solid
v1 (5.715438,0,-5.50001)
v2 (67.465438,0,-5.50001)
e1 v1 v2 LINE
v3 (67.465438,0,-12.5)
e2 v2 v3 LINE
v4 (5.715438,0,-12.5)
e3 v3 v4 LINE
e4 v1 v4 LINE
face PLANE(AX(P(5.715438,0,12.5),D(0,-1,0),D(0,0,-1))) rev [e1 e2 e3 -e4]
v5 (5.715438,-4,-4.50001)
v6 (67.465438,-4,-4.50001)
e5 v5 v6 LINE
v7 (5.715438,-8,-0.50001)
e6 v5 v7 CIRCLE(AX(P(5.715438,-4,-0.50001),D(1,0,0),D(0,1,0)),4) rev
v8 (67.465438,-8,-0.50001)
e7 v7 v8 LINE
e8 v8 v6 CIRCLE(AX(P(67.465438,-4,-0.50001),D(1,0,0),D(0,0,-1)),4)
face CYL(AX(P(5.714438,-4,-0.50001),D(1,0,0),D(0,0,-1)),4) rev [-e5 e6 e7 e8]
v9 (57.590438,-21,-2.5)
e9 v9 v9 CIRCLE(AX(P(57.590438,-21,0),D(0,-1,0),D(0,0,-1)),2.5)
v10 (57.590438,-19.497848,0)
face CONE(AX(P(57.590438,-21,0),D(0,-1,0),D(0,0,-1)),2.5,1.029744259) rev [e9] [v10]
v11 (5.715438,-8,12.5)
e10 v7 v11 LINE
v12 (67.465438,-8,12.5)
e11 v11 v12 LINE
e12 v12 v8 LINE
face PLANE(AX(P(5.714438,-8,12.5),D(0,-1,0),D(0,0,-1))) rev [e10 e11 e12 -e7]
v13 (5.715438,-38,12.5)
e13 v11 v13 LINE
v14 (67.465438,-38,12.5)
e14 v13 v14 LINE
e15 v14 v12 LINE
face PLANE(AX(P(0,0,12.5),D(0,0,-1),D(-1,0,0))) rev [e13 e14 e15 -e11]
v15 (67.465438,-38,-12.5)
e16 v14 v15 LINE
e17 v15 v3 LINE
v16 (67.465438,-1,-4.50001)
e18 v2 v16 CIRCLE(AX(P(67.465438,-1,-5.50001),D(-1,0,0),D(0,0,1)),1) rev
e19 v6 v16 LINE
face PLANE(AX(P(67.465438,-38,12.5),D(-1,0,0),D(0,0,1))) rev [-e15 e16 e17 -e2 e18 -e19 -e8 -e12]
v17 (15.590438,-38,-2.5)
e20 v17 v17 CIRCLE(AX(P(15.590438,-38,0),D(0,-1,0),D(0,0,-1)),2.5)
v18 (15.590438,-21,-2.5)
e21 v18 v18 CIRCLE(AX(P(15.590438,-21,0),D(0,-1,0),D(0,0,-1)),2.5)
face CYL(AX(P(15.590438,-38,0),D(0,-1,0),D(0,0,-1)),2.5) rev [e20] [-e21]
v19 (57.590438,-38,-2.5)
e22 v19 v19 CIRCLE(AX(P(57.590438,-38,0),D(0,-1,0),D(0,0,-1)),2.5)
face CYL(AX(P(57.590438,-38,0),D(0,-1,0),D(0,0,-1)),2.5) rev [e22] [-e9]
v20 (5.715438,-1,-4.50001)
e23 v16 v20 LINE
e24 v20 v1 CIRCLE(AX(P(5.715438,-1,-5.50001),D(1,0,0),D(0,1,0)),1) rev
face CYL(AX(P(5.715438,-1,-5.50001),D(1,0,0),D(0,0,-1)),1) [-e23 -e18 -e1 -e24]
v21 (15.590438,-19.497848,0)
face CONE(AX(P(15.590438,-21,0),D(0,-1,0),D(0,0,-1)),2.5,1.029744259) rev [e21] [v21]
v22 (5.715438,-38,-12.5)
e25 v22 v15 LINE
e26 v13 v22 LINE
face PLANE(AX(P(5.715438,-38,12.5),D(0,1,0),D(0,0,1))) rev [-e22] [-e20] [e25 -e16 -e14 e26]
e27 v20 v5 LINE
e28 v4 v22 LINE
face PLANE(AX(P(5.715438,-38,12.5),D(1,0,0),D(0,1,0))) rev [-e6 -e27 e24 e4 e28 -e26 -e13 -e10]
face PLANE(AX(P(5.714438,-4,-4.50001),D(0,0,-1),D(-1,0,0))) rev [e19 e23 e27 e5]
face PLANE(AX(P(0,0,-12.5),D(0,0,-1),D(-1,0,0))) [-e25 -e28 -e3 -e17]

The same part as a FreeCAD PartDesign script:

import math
import FreeCAD as App
import Part
import Sketcher
from FreeCAD import Vector


def edges_at(feature, points):
    """Names of the edges that pass closest to the given points."""
    edges = feature.Shape.Edges
    near = lambda p: min(range(len(edges)), key=lambda i: edges[i].distToShape(Part.Vertex(*p))[0])
    return sorted({f"Edge{near(p) + 1}" for p in points})

doc = App.newDocument("Part")
body = doc.addObject("PartDesign::Body", "Body")

sketch1 = body.newObject("Sketcher::SketchObject", "Sketch")
sketch1.AttachmentSupport = (doc.getObject("XY_Plane"), [""])
sketch1.MapMode = "FlatFace"
sketch1.addGeometry([
    Part.LineSegment(Vector(6, 0, 0), Vector(6, -38, 0)),
    Part.LineSegment(Vector(6, -38, 0), Vector(67, -38, 0)),
    Part.LineSegment(Vector(67, -38, 0), Vector(67, 0, 0)),
    Part.LineSegment(Vector(67, 0, 0), Vector(6, 0, 0)),
], False)
sketch1.addConstraint([
    Sketcher.Constraint("Coincident", 0, 2, 1, 1),
    Sketcher.Constraint("Coincident", 1, 2, 2, 1),
    Sketcher.Constraint("Coincident", 2, 2, 3, 1),
    Sketcher.Constraint("Coincident", 3, 2, 0, 1),
    Sketcher.Constraint("Vertical", 0),
    Sketcher.Constraint("Horizontal", 1),
    Sketcher.Constraint("Vertical", 2),
    Sketcher.Constraint("Horizontal", 3),
    Sketcher.Constraint("PointOnObject", 2, 2, -1),
    Sketcher.Constraint("DistanceY", 0, 2, 0, 1, 38.0),
    Sketcher.Constraint("DistanceX", 1, 1, 1, 2, 61.75),
    Sketcher.Constraint("DistanceX", -1, 1, 0, 2, 5.715438),
])
pad1 = body.newObject("PartDesign::Pad", "Pad")
pad1.Profile = sketch1
pad1.Length = 25
pad1.Midplane = True

sketch2 = body.newObject("Sketcher::SketchObject", "Sketch001")
sketch2.AttachmentSupport = (doc.getObject("YZ_Plane"), [""])
sketch2.MapMode = "FlatFace"
sketch2.AttachmentOffset = App.Placement(Vector(0, 0, 67.465438), App.Rotation())
sketch2.addGeometry([
    Part.LineSegment(Vector(-8, 12.5, 0), Vector(-8, -0.5, 0)),
    Part.ArcOfCircle(Part.Circle(Vector(-4, -0.5, 0), Vector(0, 0, 1), 4), math.radians(180), math.radians(270)),
    Part.LineSegment(Vector(-4, -4.5, 0), Vector(0, -4.5, 0)),
    Part.LineSegment(Vector(0, -4.5, 0), Vector(0, 12.5, 0)),
    Part.LineSegment(Vector(0, 12.5, 0), Vector(-8, 12.5, 0)),
], False)
sketch2.addConstraint([
    Sketcher.Constraint("Tangent", 0, 2, 1, 1),
    Sketcher.Constraint("Tangent", 1, 2, 2, 1),
    Sketcher.Constraint("Coincident", 2, 2, 3, 1),
    Sketcher.Constraint("Coincident", 3, 2, 4, 1),
    Sketcher.Constraint("Coincident", 4, 2, 0, 1),
    Sketcher.Constraint("Vertical", 0),
    Sketcher.Constraint("Horizontal", 2),
    Sketcher.Constraint("Vertical", 3),
    Sketcher.Constraint("Horizontal", 4),
    Sketcher.Constraint("PointOnObject", 2, 2, -2),
    Sketcher.Constraint("Radius", 1, 4.0),
    Sketcher.Constraint("DistanceX", 2, 1, 2, 2, 4.0),
    Sketcher.Constraint("DistanceY", -1, 1, 3, 2, 12.5),
    Sketcher.Constraint("DistanceY", 0, 2, 0, 1, 13.00001),
])
pocket1 = body.newObject("PartDesign::Pocket", "Pocket")
pocket1.Profile = sketch2
pocket1.Type = "UpToFirst"
doc.recompute()

fillet = body.newObject("PartDesign::Fillet", "Fillet")
fillet.Base = (pocket1, edges_at(pocket1, [(36.59, 0, -4.5)]))
fillet.Radius = 1

sketch3 = body.newObject("Sketcher::SketchObject", "Sketch002")
sketch3.AttachmentSupport = (doc.getObject("XZ_Plane"), [""])
sketch3.MapMode = "FlatFace"
sketch3.AttachmentOffset = App.Placement(Vector(0, 0, 38), App.Rotation())
sketch3.addGeometry([
    Part.Circle(Vector(57.6, 0, 0), Vector(0, 0, 1), 2.5),
    Part.Circle(Vector(15.6, 0, 0), Vector(0, 0, 1), 2.5),
], False)
sketch3.addConstraint([
    Sketcher.Constraint("Equal", 0, 1),
    Sketcher.Constraint("PointOnObject", 0, 3, -1),
    Sketcher.Constraint("PointOnObject", 1, 3, -1),
    Sketcher.Constraint("Diameter", 0, 5.0),
    Sketcher.Constraint("DistanceX", 1, 3, 0, 3, 42.0),
    Sketcher.Constraint("DistanceX", -1, 1, 0, 3, 57.590438),
])
doc.recompute()
hole = body.newObject("PartDesign::Hole", "Hole")
hole.Profile = sketch3
hole.ThreadType = "None"
hole.Diameter = 5
hole.DepthType = "Dimension"
hole.Depth = 17
hole.DrillPoint = "Angled"
hole.DrillPointAngle = 118

doc.recompute()
